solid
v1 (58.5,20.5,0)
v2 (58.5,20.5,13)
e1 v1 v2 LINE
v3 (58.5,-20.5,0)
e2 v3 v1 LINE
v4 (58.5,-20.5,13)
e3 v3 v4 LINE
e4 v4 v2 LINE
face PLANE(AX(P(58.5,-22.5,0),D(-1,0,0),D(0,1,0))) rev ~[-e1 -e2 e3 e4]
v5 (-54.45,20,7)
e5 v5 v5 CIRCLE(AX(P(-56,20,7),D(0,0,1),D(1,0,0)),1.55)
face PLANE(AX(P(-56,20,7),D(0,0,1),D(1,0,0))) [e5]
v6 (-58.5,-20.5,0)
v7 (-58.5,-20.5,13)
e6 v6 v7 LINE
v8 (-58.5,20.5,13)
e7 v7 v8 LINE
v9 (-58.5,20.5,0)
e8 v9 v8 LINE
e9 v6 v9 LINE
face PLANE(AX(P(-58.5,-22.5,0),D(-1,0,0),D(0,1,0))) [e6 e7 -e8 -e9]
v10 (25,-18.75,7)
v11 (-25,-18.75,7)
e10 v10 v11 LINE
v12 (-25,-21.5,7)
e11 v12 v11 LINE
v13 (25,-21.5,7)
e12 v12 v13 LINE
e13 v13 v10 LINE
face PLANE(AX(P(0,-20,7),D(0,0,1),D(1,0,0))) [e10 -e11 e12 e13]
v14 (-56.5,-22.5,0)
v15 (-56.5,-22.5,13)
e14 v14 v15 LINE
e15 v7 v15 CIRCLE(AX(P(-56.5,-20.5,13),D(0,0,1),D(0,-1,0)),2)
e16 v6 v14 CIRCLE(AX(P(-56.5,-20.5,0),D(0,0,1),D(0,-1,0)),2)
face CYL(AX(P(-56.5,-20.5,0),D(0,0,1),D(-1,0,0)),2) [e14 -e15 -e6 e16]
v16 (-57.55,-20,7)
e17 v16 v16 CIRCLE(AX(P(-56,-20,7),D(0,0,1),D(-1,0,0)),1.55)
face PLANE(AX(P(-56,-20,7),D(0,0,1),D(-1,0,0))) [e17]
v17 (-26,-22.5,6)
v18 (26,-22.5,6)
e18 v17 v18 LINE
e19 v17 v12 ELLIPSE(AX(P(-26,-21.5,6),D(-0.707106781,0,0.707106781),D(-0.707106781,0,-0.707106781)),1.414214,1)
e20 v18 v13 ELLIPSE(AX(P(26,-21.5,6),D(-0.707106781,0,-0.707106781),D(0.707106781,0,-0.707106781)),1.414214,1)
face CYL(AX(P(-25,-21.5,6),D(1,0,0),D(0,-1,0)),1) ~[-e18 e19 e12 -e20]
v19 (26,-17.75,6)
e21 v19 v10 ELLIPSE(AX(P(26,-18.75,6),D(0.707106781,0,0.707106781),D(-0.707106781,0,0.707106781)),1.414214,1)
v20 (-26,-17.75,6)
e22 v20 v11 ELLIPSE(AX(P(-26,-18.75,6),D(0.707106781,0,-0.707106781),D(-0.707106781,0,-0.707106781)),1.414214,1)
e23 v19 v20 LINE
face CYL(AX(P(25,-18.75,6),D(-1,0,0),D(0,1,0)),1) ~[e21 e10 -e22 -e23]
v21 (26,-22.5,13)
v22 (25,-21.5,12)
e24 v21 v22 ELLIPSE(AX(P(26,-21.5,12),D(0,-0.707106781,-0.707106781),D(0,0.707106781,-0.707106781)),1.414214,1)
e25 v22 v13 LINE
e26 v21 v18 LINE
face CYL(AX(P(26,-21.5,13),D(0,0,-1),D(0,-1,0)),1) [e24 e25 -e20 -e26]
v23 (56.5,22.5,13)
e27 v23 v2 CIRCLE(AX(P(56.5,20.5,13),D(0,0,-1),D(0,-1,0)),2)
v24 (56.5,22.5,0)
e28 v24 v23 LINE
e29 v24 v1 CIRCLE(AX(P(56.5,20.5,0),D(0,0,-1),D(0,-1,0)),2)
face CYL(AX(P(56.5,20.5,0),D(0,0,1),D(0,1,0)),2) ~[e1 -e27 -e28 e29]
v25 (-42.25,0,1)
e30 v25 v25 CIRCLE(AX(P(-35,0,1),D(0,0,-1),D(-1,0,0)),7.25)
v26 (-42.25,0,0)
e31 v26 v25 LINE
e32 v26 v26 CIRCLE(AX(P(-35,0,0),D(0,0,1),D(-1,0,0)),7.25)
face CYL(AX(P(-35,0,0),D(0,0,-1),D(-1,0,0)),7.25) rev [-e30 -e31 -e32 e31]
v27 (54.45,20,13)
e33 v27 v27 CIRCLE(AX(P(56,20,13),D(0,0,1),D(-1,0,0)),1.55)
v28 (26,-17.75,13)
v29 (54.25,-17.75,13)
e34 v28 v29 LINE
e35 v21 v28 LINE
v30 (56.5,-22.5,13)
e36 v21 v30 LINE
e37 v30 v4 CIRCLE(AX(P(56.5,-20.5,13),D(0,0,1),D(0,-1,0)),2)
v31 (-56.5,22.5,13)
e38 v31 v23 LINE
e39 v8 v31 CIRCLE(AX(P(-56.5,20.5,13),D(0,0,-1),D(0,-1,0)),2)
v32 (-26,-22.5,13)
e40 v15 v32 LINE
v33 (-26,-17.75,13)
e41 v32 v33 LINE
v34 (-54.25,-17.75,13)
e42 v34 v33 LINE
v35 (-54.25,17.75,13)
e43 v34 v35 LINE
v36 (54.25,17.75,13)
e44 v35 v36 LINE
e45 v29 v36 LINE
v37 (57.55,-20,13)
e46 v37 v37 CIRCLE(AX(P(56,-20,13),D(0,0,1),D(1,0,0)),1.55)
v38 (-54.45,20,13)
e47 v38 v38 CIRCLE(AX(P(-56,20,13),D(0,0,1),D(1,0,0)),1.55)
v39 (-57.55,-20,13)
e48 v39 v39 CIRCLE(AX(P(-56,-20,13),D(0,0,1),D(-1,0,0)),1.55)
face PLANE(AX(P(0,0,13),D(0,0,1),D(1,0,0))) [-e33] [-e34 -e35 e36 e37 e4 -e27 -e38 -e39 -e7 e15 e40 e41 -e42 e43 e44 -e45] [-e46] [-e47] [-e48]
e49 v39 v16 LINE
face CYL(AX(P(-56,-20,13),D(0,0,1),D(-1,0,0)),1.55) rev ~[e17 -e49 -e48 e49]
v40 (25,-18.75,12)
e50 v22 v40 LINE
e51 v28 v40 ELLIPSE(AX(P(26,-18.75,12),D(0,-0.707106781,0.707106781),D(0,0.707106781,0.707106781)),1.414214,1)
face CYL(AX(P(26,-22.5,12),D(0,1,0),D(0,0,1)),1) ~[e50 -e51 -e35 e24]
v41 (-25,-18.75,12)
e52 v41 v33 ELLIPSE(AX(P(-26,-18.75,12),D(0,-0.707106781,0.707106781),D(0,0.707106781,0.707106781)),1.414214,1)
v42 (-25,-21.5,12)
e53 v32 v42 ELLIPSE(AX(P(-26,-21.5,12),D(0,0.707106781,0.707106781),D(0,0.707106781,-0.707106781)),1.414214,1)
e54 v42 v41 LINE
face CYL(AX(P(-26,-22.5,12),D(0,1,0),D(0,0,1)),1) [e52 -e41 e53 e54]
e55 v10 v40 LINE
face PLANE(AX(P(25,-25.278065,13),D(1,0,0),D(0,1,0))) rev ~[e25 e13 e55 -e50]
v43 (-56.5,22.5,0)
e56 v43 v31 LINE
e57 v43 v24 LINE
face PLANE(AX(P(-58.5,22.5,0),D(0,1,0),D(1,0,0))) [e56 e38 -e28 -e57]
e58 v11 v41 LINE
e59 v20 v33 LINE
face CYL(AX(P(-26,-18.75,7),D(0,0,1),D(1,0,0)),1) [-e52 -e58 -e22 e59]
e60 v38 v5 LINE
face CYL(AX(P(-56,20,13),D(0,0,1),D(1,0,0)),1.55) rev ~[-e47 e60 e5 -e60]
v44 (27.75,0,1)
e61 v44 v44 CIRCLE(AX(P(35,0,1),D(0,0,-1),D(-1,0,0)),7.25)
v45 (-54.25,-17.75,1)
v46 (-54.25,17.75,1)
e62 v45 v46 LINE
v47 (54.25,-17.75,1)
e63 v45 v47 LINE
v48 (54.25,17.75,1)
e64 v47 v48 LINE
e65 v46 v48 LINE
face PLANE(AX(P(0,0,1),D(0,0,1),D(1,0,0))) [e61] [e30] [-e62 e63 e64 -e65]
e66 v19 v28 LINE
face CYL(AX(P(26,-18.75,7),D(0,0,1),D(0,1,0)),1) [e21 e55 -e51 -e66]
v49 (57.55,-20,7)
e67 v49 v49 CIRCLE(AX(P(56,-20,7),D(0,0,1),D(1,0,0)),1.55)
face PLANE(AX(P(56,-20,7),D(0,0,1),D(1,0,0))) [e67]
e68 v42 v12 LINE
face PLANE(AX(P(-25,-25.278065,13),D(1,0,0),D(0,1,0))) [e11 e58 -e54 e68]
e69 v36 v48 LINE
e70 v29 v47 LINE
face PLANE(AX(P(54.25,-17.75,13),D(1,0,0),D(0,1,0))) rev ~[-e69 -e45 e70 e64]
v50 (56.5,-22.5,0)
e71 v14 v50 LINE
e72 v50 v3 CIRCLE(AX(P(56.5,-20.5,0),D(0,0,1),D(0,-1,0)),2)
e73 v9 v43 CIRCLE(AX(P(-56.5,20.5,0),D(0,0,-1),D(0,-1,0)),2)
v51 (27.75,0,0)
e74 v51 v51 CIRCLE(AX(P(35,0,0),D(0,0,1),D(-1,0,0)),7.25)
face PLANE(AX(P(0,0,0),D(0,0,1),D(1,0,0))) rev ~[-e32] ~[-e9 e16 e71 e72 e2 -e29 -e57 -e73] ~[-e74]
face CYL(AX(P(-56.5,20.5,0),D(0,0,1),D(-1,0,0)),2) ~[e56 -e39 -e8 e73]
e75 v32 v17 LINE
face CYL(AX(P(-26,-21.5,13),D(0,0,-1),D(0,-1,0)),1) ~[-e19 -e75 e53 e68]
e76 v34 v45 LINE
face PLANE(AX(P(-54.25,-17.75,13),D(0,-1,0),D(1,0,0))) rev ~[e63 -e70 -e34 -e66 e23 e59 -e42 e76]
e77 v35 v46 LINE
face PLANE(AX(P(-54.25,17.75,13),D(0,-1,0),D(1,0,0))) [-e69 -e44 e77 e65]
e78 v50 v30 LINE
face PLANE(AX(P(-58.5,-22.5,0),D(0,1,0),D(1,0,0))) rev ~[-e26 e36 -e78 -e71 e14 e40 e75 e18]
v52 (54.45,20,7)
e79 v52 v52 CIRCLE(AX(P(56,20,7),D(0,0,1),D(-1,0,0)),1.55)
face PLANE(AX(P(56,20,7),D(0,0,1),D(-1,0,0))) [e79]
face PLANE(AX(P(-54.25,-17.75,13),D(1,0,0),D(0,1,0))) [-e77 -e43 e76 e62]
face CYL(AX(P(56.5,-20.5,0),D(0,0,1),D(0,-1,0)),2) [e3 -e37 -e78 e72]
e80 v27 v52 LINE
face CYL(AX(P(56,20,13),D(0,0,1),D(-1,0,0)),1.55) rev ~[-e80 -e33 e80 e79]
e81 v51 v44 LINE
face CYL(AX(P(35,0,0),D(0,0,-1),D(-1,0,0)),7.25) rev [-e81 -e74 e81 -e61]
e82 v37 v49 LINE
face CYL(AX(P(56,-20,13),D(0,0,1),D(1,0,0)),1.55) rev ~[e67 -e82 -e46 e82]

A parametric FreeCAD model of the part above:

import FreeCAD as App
import Part
import Sketcher

V = App.Vector
Q = App.Units.Quantity


def edges_at(feature, points):
    """Names of the edges that pass closest to the given points."""
    edges = feature.Shape.Edges
    near = lambda p: min(range(len(edges)), key=lambda i: edges[i].distToShape(Part.Vertex(*p))[0])
    return sorted({f"Edge{near(p) + 1}" for p in points})

doc = App.newDocument("Part")
body = doc.addObject("PartDesign::Body", "Body")

# Sketch on XY plane
sketch1 = doc.addObject("Sketcher::SketchObject", "Sketch")
body.addObject(sketch1)
sketch1.AttachmentSupport = (doc.XY_Plane, [""])
sketch1.MapMode = "FlatFace"
sketch1.addGeometry([
    Part.LineSegment(V(-58, 22, 0), V(-58, -22, 0)),  # 0
    Part.LineSegment(V(-58, -22, 0), V(58, -22, 0)),  # 1
    Part.LineSegment(V(58, -22, 0), V(58, 22, 0)),  # 2
    Part.LineSegment(V(58, 22, 0), V(-58, 22, 0)),  # 3
    Part.Circle(V(-35, 0, 0), V(0, 0, 1), 7),  # 4
    Part.Circle(V(35, 0, 0), V(0, 0, 1), 7),  # 5
], False)
sketch1.addConstraint([
    Sketcher.Constraint("Coincident", 0, 2, 1, 1),
    Sketcher.Constraint("Coincident", 1, 2, 2, 1),
    Sketcher.Constraint("Coincident", 2, 2, 3, 1),
    Sketcher.Constraint("Coincident", 3, 2, 0, 1),
    Sketcher.Constraint("Vertical", 0),
    Sketcher.Constraint("Horizontal", 1),
    Sketcher.Constraint("Vertical", 2),
    Sketcher.Constraint("Horizontal", 3),
    Sketcher.Constraint("Equal", 4, 5),
    Sketcher.Constraint("Symmetric", 4, 3, 5, 3, -1, 1),
    Sketcher.Constraint("Symmetric", 0, 2, 2, 2, -1, 1),
    Sketcher.Constraint("PointOnObject", 4, 3, -1),
    Sketcher.Constraint("Diameter", 4, Q("14.5 mm")),
    Sketcher.Constraint("DistanceX", 1, 1, 1, 2, Q("117 mm")),
    Sketcher.Constraint("DistanceY", 0, 2, 0, 1, Q("45 mm")),
    Sketcher.Constraint("DistanceX", 4, 3, -1, 1, Q("35 mm")),
])
pad1 = doc.addObject("PartDesign::Pad", "Pad")
body.addObject(pad1)
pad1.Profile = sketch1
pad1.Length = 13

# Sketch on XY plane
sketch2 = doc.addObject("Sketcher::SketchObject", "Sketch001")
body.addObject(sketch2)
sketch2.AttachmentSupport = (doc.XY_Plane, [""])
sketch2.MapMode = "FlatFace"
sketch2.AttachmentOffset = App.Placement(V(0, 0, 13), App.Rotation())
sketch2.addGeometry([
    Part.LineSegment(V(-54, 18, 0), V(-54, -18, 0)),
    Part.LineSegment(V(-54, -18, 0), V(54, -18, 0)),
    Part.LineSegment(V(54, -18, 0), V(54, 18, 0)),
    Part.LineSegment(V(54, 18, 0), V(-54, 18, 0)),
], False)
sketch2.addConstraint([
    Sketcher.Constraint("Coincident", 0, 2, 1, 1),
    Sketcher.Constraint("Coincident", 1, 2, 2, 1),
    Sketcher.Constraint("Coincident", 2, 2, 3, 1),
    Sketcher.Constraint("Coincident", 3, 2, 0, 1),
    Sketcher.Constraint("Vertical", 0),
    Sketcher.Constraint("Horizontal", 1),
    Sketcher.Constraint("Vertical", 2),
    Sketcher.Constraint("Horizontal", 3),
    Sketcher.Constraint("Symmetric", 0, 2, 2, 2, -1, 1),
    Sketcher.Constraint("DistanceX", 1, 1, 1, 2, Q("108.5 mm")),
    Sketcher.Constraint("DistanceY", 0, 2, 0, 1, Q("35.5 mm")),
])
pocket1 = doc.addObject("PartDesign::Pocket", "Pocket")
body.addObject(pocket1)
pocket1.Profile = sketch2
pocket1.Length = 12

# Sketch on XY plane
sketch3 = doc.addObject("Sketcher::SketchObject", "Sketch002")
body.addObject(sketch3)
sketch3.AttachmentSupport = (doc.XY_Plane, [""])
sketch3.MapMode = "FlatFace"
sketch3.AttachmentOffset = App.Placement(V(0, 0, 13), App.Rotation())
sketch3.addGeometry([
    Part.Circle(V(-56, 20, 0), V(0, 0, 1), 1.6),
    Part.Circle(V(-56, -20, 0), V(0, 0, 1), 1.6),
    Part.Circle(V(56, -20, 0), V(0, 0, 1), 1.6),
    Part.Circle(V(56, 20, 0), V(0, 0, 1), 1.6),
], False)
sketch3.addConstraint([
    Sketcher.Constraint("Equal", 0, 1),
    Sketcher.Constraint("Equal", 1, 2),
    Sketcher.Constraint("Equal", 2, 3),
    Sketcher.Constraint("Symmetric", 0, 3, 2, 3, -1, 1),
    Sketcher.Constraint("Symmetric", 1, 3, 3, 3, -1, 1),
    Sketcher.Constraint("Symmetric", 1, 3, 2, 3, -2),
    Sketcher.Constraint("Diameter", 0, Q("3.1 mm")),
    Sketcher.Constraint("DistanceX", 0, 3, -1, 1, Q("56 mm")),
    Sketcher.Constraint("DistanceY", -1, 1, 0, 3, Q("20 mm")),
])
pocket2 = doc.addObject("PartDesign::Pocket", "Pocket001")
body.addObject(pocket2)
pocket2.Profile = sketch3
pocket2.Length = 6

# Sketch on XY plane
sketch4 = doc.addObject("Sketcher::SketchObject", "Sketch003")
body.addObject(sketch4)
sketch4.AttachmentSupport = (doc.XY_Plane, [""])
sketch4.MapMode = "FlatFace"
sketch4.AttachmentOffset = App.Placement(V(0, 0, 13), App.Rotation())
sketch4.addGeometry([
    Part.LineSegment(V(-25, -15, 0), V(-25, -25, 0)),
    Part.LineSegment(V(-25, -25, 0), V(25, -25, 0)),
    Part.LineSegment(V(25, -25, 0), V(25, -15, 0)),
    Part.LineSegment(V(25, -15, 0), V(-25, -15, 0)),
], False)
sketch4.addConstraint([
    Sketcher.Constraint("Coincident", 0, 2, 1, 1),
    Sketcher.Constraint("Coincident", 1, 2, 2, 1),
    Sketcher.Constraint("Coincident", 2, 2, 3, 1),
    Sketcher.Constraint("Coincident", 3, 2, 0, 1),
    Sketcher.Constraint("Vertical", 0),
    Sketcher.Constraint("Horizontal", 1),
    Sketcher.Constraint("Vertical", 2),
    Sketcher.Constraint("Horizontal", 3),
    Sketcher.Constraint("DistanceX", 1, 1, 1, 2, Q("50 mm")),
    Sketcher.Constraint("DistanceX", 0, 2, -1, 1, Q("25 mm")),
    Sketcher.Constraint("DistanceY", 0, 2, 0, 1, Q("10.55613 mm")),
    Sketcher.Constraint("DistanceY", 0, 2, -1, 1, Q("25.278065 mm")),
])
pocket3 = doc.addObject("PartDesign::Pocket", "Pocket002")
body.addObject(pocket3)
pocket3.Profile = sketch4
pocket3.Length = 6
doc.recompute()

fillet = doc.addObject("PartDesign::Fillet", "Fillet")
body.addObject(fillet)
fillet.Base = (pocket3, edges_at(pocket3, [
    (58.5, -22.5, 6.5),
    (-58.5, -22.5, 6.5),
    (-58.5, 22.5, 6.5),
    (58.5, 22.5, 6.5),
]))
fillet.Radius = 2
doc.recompute()

fillet2 = doc.addObject("PartDesign::Fillet", "Fillet001")
body.addObject(fillet2)
fillet2.Base = (fillet, edges_at(fillet, [
    (0, -17.75, 7),
    (25, -17.75, 10),
    (-25, -17.75, 10),
    (-25, -22.5, 10),
    (25, -22.5, 10),
    (0, -22.5, 7),
    (-25, -20.125, 13),
    (25, -20.125, 13),
]))
fillet2.Radius = 1

doc.recompute()
